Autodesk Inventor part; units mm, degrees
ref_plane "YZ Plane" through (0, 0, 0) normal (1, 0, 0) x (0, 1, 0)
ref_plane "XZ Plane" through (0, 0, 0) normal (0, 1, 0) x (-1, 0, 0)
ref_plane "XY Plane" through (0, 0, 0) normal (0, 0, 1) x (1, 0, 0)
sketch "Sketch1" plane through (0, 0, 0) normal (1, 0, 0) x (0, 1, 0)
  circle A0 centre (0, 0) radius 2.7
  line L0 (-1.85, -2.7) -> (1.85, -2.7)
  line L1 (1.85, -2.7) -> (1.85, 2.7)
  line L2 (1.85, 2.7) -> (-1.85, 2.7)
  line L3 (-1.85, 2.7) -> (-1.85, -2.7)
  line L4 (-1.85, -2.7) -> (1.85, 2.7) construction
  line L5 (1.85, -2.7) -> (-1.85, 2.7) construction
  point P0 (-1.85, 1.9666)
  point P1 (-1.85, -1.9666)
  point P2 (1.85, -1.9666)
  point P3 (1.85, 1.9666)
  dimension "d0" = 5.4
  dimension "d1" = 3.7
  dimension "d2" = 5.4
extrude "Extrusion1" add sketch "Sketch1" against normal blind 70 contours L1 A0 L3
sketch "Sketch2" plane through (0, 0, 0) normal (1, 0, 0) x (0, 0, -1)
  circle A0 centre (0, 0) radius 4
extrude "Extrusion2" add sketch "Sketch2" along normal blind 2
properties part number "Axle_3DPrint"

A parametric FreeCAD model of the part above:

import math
import FreeCAD as App
import Part
import Sketcher

V = App.Vector

doc = App.newDocument("Part")
body = doc.addObject("PartDesign::Body", "Body")

# Sketch on YZ plane
sketch1 = doc.addObject("Sketcher::SketchObject", "Sketch")
body.addObject(sketch1)
sketch1.AttachmentSupport = (doc.YZ_Plane, [""])
sketch1.MapMode = "FlatFace"
sketch1.addGeometry(Part.LineSegment(V(1.9, -2, 0), V(1.9, 2, 0)), False)
sketch1.addGeometry(Part.ArcOfCircle(Part.Circle(V(0, 0, 0), V(0, 0, 1), 2.7), math.radians(47), math.radians(133)), False)
sketch1.addGeometry(Part.LineSegment(V(-1.9, 2, 0), V(-1.9, -2, 0)), False)
sketch1.addGeometry(Part.ArcOfCircle(Part.Circle(V(0, 0, 0), V(0, 0, 1), 2.7), math.radians(-133), math.radians(-47)), False)
sketch1.addConstraint(Sketcher.Constraint("Coincident", 0, 2, 1, 1))
sketch1.addConstraint(Sketcher.Constraint("Coincident", 1, 2, 2, 1))
sketch1.addConstraint(Sketcher.Constraint("Coincident", 2, 2, 3, 1))
sketch1.addConstraint(Sketcher.Constraint("Coincident", 3, 2, 0, 1))
sketch1.addConstraint(Sketcher.Constraint("Vertical", 0))
sketch1.addConstraint(Sketcher.Constraint("Vertical", 2))
sketch1.addConstraint(Sketcher.Constraint("Coincident", 1, 3, -1, 1))
sketch1.addConstraint(Sketcher.Constraint("Coincident", 3, 3, -1, 1))
sketch1.addConstraint(Sketcher.Constraint("Equal", 1, 3))
sketch1.addConstraint(Sketcher.Constraint("Horizontal", 0, 2, 1, 2))
sketch1.addConstraint(Sketcher.Constraint("Radius", 1, 2.7))
sketch1.addConstraint(Sketcher.Constraint("DistanceX", 1, 2, 0, 2, 3.7))
pad1 = doc.addObject("PartDesign::Pad", "Pad")
body.addObject(pad1)
pad1.Profile = sketch1
pad1.Length = 70
pad1.Reversed = True

# Sketch on YZ plane
sketch2 = doc.addObject("Sketcher::SketchObject", "Sketch001")
body.addObject(sketch2)
sketch2.AttachmentSupport = (doc.YZ_Plane, [""])
sketch2.MapMode = "FlatFace"
sketch2.addGeometry(Part.Circle(V(0, 0, 0), V(0, 0, 1), 4), False)
sketch2.addConstraint(Sketcher.Constraint("Coincident", 0, 3, -1, 1))
sketch2.addConstraint(Sketcher.Constraint("Diameter", 0, 8.0))
pad2 = doc.addObject("PartDesign::Pad", "Pad001")
body.addObject(pad2)
pad2.Profile = sketch2
pad2.Length = 2

doc.recompute()
